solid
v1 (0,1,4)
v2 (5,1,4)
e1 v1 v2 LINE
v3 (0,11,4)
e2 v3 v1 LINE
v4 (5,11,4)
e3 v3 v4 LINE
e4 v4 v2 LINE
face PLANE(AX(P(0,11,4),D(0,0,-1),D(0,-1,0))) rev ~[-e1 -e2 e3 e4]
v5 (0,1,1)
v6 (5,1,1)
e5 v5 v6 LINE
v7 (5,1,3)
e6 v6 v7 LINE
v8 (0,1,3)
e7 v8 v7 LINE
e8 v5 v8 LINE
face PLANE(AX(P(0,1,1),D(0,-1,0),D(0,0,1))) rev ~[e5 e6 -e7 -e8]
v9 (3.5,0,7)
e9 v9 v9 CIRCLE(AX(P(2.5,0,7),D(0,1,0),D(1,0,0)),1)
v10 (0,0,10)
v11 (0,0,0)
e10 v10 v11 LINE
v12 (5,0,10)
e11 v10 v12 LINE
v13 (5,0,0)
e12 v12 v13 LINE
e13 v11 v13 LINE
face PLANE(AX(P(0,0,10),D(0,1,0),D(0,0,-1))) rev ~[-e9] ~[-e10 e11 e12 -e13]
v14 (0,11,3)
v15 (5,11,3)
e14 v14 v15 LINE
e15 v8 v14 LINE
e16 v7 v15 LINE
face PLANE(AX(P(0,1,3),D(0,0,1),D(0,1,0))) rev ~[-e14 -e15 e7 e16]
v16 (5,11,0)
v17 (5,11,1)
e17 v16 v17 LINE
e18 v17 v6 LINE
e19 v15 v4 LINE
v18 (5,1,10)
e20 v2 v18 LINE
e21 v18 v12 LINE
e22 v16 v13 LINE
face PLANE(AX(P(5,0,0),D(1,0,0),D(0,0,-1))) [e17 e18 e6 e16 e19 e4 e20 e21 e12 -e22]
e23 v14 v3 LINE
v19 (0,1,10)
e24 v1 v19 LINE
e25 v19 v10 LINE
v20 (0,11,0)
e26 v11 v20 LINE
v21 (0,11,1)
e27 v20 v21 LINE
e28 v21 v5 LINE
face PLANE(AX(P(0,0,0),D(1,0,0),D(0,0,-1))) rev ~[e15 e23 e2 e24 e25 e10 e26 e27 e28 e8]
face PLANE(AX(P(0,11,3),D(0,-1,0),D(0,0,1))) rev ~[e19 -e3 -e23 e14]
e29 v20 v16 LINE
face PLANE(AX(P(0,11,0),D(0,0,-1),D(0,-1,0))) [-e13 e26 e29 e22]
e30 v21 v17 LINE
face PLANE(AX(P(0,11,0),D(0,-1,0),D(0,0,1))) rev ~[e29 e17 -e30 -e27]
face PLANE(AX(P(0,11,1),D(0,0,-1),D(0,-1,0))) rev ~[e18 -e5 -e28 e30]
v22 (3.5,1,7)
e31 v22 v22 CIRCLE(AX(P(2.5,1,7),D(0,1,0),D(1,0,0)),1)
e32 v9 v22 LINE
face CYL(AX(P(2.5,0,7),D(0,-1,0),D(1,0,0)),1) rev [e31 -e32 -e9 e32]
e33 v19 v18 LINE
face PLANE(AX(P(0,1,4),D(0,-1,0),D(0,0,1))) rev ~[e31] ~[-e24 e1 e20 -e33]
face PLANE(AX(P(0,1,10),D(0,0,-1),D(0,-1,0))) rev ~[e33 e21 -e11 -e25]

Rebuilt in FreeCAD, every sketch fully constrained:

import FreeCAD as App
import Part
import Sketcher

V = App.Vector

doc = App.newDocument("Part")
body = doc.addObject("PartDesign::Body", "Body")

sketch1 = body.newObject("Sketcher::SketchObject", "Sketch")
sketch1.AttachmentSupport = (doc.getObject("YZ_Plane"), [""])
sketch1.MapMode = "FlatFace"
sketch1.addGeometry(Part.LineSegment(V(11, 0, 0), V(11, 1, 0)), False)
sketch1.addGeometry(Part.LineSegment(V(11, 1, 0), V(1, 1, 0)), False)
sketch1.addGeometry(Part.LineSegment(V(1, 1, 0), V(1, 3, 0)), False)
sketch1.addGeometry(Part.LineSegment(V(1, 3, 0), V(11, 3, 0)), False)
sketch1.addGeometry(Part.LineSegment(V(11, 3, 0), V(11, 4, 0)), False)
sketch1.addGeometry(Part.LineSegment(V(11, 4, 0), V(1, 4, 0)), False)
sketch1.addGeometry(Part.LineSegment(V(1, 4, 0), V(1, 10, 0)), False)
sketch1.addGeometry(Part.LineSegment(V(1, 10, 0), V(0, 10, 0)), False)
sketch1.addGeometry(Part.LineSegment(V(0, 10, 0), V(0, 0, 0)), False)
sketch1.addGeometry(Part.LineSegment(V(0, 0, 0), V(11, 0, 0)), False)
sketch1.addConstraint(Sketcher.Constraint("Coincident", 0, 2, 1, 1))
sketch1.addConstraint(Sketcher.Constraint("Coincident", 1, 2, 2, 1))
sketch1.addConstraint(Sketcher.Constraint("Coincident", 2, 2, 3, 1))
sketch1.addConstraint(Sketcher.Constraint("Coincident", 3, 2, 4, 1))
sketch1.addConstraint(Sketcher.Constraint("Coincident", 4, 2, 5, 1))
sketch1.addConstraint(Sketcher.Constraint("Coincident", 5, 2, 6, 1))
sketch1.addConstraint(Sketcher.Constraint("Coincident", 6, 2, 7, 1))
sketch1.addConstraint(Sketcher.Constraint("Coincident", 7, 2, 8, 1))
sketch1.addConstraint(Sketcher.Constraint("Coincident", 8, 2, 9, 1))
sketch1.addConstraint(Sketcher.Constraint("Coincident", 9, 2, 0, 1))
sketch1.addConstraint(Sketcher.Constraint("Vertical", 0))
sketch1.addConstraint(Sketcher.Constraint("Horizontal", 1))
sketch1.addConstraint(Sketcher.Constraint("Vertical", 2))
sketch1.addConstraint(Sketcher.Constraint("Horizontal", 3))
sketch1.addConstraint(Sketcher.Constraint("Vertical", 4))
sketch1.addConstraint(Sketcher.Constraint("Horizontal", 5))
sketch1.addConstraint(Sketcher.Constraint("Vertical", 6))
sketch1.addConstraint(Sketcher.Constraint("Horizontal", 7))
sketch1.addConstraint(Sketcher.Constraint("Vertical", 8))
sketch1.addConstraint(Sketcher.Constraint("Horizontal", 9))
sketch1.addConstraint(Sketcher.Constraint("Coincident", 8, 2, -1, 1))
sketch1.addConstraint(Sketcher.Constraint("Vertical", 0, 2, 3, 2))
sketch1.addConstraint(Sketcher.Constraint("Vertical", 2, 2, 5, 2))
sketch1.addConstraint(Sketcher.Constraint("Equal", 7, 0))
sketch1.addConstraint(Sketcher.Constraint("Equal", 0, 4))
sketch1.addConstraint(Sketcher.Constraint("Equal", 5, 8))
sketch1.addConstraint(Sketcher.Constraint("DistanceX", 1, 2, 1, 1, 10.0))
sketch1.addConstraint(Sketcher.Constraint("DistanceX", 7, 2, 7, 1, 1.0))
sketch1.addConstraint(Sketcher.Constraint("DistanceY", 2, 1, 2, 2, 2.0))
pad1 = body.newObject("PartDesign::Pad", "Pad")
pad1.Profile = sketch1
pad1.Length = 5

sketch2 = body.newObject("Sketcher::SketchObject", "Sketch001")
sketch2.AttachmentSupport = (doc.getObject("XZ_Plane"), [""])
sketch2.MapMode = "FlatFace"
sketch2.addGeometry(Part.Circle(V(2.5, 7, 0), V(0, 0, 1), 1), False)
sketch2.addConstraint(Sketcher.Constraint("Diameter", 0, 2.0))
sketch2.addConstraint(Sketcher.Constraint("DistanceY", -1, 1, 0, 3, 7.0))
sketch2.addConstraint(Sketcher.Constraint("DistanceX", -1, 1, 0, 3, 2.5))
pocket1 = body.newObject("PartDesign::Pocket", "Pocket")
pocket1.Profile = sketch2
pocket1.Length = 1

doc.recompute()
